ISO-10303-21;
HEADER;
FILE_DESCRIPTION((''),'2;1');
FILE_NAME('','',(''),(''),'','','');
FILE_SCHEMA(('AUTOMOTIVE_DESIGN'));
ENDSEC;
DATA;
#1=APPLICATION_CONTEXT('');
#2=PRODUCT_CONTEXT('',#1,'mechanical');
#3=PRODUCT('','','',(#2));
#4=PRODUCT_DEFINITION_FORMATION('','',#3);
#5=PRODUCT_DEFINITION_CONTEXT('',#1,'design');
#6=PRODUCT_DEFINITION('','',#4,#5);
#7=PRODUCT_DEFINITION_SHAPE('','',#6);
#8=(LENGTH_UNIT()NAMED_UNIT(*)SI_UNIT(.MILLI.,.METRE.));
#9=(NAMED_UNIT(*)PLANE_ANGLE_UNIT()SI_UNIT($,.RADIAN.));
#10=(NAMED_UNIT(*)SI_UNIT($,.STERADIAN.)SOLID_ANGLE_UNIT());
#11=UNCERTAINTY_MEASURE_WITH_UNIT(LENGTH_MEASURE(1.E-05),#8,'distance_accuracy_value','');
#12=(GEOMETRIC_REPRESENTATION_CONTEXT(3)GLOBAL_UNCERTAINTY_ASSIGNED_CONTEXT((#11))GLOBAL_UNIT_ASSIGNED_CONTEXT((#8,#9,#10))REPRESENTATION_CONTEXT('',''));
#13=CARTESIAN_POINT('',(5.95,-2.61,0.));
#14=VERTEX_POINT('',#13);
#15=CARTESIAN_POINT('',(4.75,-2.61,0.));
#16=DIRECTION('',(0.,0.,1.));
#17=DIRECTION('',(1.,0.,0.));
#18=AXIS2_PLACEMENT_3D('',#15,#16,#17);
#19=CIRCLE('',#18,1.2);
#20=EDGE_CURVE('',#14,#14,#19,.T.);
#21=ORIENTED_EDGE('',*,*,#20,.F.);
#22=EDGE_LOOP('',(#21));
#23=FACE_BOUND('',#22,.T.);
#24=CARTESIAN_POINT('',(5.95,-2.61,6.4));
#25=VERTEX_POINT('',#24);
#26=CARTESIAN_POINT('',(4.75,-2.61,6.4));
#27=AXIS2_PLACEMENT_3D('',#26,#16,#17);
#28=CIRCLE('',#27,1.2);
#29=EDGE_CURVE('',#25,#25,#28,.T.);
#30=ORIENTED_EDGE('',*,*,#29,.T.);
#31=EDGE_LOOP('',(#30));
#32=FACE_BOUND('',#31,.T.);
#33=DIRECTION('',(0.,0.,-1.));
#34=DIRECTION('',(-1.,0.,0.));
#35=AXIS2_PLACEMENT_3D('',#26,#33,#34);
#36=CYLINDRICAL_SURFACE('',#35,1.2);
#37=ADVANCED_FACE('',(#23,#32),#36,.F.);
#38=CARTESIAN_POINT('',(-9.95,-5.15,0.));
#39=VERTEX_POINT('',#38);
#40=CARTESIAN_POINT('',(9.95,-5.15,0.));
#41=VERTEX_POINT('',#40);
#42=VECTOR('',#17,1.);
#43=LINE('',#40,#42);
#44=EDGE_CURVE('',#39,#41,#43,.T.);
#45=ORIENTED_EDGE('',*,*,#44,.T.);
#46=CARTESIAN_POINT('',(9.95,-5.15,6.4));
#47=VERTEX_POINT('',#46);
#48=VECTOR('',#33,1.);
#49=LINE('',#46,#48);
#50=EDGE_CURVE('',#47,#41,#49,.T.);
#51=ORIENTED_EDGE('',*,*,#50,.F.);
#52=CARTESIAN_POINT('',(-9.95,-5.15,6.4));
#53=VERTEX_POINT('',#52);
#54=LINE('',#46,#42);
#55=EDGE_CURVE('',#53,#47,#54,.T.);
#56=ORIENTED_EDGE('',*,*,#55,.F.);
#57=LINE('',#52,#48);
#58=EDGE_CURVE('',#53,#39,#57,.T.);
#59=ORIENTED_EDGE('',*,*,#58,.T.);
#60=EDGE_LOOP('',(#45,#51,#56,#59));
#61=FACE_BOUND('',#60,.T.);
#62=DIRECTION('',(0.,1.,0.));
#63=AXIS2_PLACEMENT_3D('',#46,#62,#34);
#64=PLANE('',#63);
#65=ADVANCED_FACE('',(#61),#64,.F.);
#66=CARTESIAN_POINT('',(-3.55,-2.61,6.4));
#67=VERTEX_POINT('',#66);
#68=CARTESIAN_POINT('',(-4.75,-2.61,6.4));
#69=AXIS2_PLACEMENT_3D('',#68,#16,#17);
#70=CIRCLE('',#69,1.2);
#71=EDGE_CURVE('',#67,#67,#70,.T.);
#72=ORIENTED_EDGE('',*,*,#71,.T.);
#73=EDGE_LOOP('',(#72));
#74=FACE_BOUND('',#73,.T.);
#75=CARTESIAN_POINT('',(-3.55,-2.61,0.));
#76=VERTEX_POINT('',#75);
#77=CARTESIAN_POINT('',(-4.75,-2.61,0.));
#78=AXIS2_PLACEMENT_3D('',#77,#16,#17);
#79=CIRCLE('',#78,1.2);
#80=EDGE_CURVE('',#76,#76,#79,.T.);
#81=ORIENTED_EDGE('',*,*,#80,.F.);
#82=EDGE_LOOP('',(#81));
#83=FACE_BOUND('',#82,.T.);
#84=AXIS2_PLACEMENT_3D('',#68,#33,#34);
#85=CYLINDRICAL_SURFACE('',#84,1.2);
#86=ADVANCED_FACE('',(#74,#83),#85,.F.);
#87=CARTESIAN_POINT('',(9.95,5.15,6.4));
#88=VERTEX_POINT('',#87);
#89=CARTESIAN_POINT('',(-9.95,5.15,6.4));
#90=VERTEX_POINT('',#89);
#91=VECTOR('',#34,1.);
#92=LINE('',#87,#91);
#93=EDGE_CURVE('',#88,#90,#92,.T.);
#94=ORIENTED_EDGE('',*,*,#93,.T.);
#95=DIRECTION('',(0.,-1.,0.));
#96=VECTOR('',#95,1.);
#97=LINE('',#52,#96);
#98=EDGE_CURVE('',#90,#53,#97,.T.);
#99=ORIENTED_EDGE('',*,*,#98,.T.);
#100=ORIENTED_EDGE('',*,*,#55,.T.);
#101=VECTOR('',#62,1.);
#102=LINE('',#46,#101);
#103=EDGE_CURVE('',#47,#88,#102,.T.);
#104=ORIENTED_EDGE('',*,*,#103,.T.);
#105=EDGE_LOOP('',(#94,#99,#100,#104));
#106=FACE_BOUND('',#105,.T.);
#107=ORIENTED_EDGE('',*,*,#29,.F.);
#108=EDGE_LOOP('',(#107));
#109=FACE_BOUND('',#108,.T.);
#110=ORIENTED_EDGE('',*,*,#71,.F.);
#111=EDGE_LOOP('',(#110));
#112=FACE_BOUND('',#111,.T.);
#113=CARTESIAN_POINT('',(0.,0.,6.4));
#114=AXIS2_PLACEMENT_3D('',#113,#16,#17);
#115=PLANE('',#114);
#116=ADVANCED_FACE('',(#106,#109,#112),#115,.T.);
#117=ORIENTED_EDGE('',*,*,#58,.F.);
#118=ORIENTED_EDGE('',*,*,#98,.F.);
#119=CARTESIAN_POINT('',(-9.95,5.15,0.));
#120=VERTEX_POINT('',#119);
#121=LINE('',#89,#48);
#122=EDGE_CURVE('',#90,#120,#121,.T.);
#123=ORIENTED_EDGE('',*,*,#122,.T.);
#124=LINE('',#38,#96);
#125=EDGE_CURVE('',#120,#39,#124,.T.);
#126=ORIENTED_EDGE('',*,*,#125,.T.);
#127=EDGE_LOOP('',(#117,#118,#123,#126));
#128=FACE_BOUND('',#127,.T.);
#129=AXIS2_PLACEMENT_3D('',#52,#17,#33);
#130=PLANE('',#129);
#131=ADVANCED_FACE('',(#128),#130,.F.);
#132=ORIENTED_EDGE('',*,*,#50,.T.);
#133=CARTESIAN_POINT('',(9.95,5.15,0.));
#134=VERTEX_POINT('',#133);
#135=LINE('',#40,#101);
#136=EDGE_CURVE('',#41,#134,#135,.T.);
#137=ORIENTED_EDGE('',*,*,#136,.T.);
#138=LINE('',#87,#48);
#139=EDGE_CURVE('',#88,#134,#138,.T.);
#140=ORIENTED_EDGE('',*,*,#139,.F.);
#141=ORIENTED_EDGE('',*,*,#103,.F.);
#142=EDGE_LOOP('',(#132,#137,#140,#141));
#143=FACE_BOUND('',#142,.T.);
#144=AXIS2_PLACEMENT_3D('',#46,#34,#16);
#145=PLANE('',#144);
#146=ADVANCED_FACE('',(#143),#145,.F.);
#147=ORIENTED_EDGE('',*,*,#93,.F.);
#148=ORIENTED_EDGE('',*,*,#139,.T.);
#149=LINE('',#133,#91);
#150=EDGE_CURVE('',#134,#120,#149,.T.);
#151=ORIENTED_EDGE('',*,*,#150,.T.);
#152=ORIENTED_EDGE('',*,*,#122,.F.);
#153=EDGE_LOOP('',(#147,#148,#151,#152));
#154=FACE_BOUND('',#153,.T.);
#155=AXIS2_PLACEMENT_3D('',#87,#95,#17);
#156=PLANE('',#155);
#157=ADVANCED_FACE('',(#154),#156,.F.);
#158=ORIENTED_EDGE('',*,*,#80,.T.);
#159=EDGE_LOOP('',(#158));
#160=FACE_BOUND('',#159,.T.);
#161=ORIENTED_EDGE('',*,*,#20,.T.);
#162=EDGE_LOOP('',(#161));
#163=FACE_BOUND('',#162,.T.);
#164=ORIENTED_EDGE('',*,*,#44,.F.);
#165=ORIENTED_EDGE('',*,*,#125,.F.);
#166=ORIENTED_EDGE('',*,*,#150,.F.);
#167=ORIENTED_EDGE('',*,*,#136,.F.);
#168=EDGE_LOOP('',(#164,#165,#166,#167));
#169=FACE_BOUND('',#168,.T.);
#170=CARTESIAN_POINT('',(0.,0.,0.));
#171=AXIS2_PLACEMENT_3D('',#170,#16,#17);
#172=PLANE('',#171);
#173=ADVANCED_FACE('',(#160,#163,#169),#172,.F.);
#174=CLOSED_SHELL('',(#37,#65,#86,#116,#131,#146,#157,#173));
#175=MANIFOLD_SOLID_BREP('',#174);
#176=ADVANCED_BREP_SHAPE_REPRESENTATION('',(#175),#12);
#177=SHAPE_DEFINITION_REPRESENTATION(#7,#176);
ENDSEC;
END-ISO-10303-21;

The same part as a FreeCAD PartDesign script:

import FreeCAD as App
import Part
import Sketcher


def add_polygon(sketch, points):
    """Adds a closed chain of lines whose ends are joined by coincident constraints."""
    first, n = sketch.GeometryCount, len(points)
    for a, b in zip(points, points[1:] + points[:1]):
        sketch.addGeometry(Part.LineSegment(App.Vector(*a, 0), App.Vector(*b, 0)), False)
    for i in range(n):
        sketch.addConstraint(Sketcher.Constraint("Coincident", first + i, 2, first + (i + 1) % n, 1))

doc = App.newDocument("Part")
body = doc.addObject("PartDesign::Body", "Body")

# Sketch on XY plane
sketch1 = body.newObject("Sketcher::SketchObject", "Sketch")
sketch1.AttachmentSupport = (doc.getObject("XY_Plane"), [""])
sketch1.MapMode = "FlatFace"
add_polygon(sketch1, [(-9.9, 5.2), (-9.9, -5.2), (9.9, -5.2), (9.9, 5.2)])  # lines 0-3
sketch1.addGeometry(Part.Circle(App.Vector(-4.8, -2.6, 0), App.Vector(0, 0, 1), 1.2), False)  # 4
sketch1.addGeometry(Part.Circle(App.Vector(4.8, -2.6, 0), App.Vector(0, 0, 1), 1.2), False)  # 5
sketch1.addConstraint(Sketcher.Constraint("Vertical", 0))
sketch1.addConstraint(Sketcher.Constraint("Horizontal", 1))
sketch1.addConstraint(Sketcher.Constraint("Vertical", 2))
sketch1.addConstraint(Sketcher.Constraint("Horizontal", 3))
sketch1.addConstraint(Sketcher.Constraint("Equal", 4, 5))
sketch1.addConstraint(Sketcher.Constraint("Symmetric", 0, 2, 2, 2, -1, 1))
sketch1.addConstraint(Sketcher.Constraint("Symmetric", 4, 3, 5, 3, -2))
sketch1.addConstraint(Sketcher.Constraint("Diameter", 4, 2.4))
sketch1.addConstraint(Sketcher.Constraint("DistanceX", 1, 1, 1, 2, 19.9))
sketch1.addConstraint(Sketcher.Constraint("DistanceY", 0, 2, 0, 1, 10.3))
sketch1.addConstraint(Sketcher.Constraint("DistanceX", 4, 3, 5, 3, 9.5))
sketch1.addConstraint(Sketcher.Constraint("DistanceY", 4, 3, -1, 1, 2.61))
pad1 = body.newObject("PartDesign::Pad", "Pad")
pad1.Profile = sketch1
pad1.Length = 6.4

doc.recompute()
